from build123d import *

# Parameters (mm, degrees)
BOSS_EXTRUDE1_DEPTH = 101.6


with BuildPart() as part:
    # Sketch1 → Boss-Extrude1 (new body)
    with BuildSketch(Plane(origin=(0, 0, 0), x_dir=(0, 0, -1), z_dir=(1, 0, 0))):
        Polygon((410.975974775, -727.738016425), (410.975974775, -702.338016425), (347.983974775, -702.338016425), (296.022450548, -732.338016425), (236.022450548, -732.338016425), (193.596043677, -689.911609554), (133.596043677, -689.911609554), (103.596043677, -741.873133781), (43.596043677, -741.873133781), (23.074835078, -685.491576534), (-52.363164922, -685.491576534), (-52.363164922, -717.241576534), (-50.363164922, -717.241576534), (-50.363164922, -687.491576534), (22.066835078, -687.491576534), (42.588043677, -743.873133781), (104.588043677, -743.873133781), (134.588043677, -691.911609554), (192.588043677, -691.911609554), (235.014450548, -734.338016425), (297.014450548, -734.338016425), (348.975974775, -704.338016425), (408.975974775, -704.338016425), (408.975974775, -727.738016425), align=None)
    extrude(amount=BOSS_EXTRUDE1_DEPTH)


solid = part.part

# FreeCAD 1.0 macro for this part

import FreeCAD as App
import Part
import Sketcher
Q = App.Units.Quantity

doc = App.newDocument("Part")
body = doc.addObject("PartDesign::Body", "Body")

# Sketch on YZ plane
sketch1 = doc.addObject("Sketcher::SketchObject", "Sketch")
body.addObject(sketch1)
sketch1.AttachmentSupport = (doc.YZ_Plane, [""])
sketch1.MapMode = "FlatFace"
sketch1.addGeometry([
    Part.LineSegment(App.Vector(-727.7, -411, 0), App.Vector(-702.3, -411, 0)),  # 0
    Part.LineSegment(App.Vector(-702.3, -411, 0), App.Vector(-702.3, -348, 0)),  # 1
    Part.LineSegment(App.Vector(-702.3, -348, 0), App.Vector(-732.3, -296, 0)),  # 2
    Part.LineSegment(App.Vector(-732.3, -296, 0), App.Vector(-732.3, -236, 0)),  # 3
    Part.LineSegment(App.Vector(-732.3, -236, 0), App.Vector(-689.9, -193.6, 0)),  # 4
    Part.LineSegment(App.Vector(-689.9, -193.6, 0), App.Vector(-689.9, -133.6, 0)),  # 5
    Part.LineSegment(App.Vector(-689.9, -133.6, 0), App.Vector(-741.9, -103.6, 0)),  # 6
    Part.LineSegment(App.Vector(-741.9, -103.6, 0), App.Vector(-741.9, -43.6, 0)),  # 7
    Part.LineSegment(App.Vector(-741.9, -43.6, 0), App.Vector(-685.5, -23.1, 0)),  # 8
    Part.LineSegment(App.Vector(-685.5, -23.1, 0), App.Vector(-685.5, 52.4, 0)),  # 9
    Part.LineSegment(App.Vector(-685.5, 52.4, 0), App.Vector(-717.2, 52.4, 0)),  # 10
    Part.LineSegment(App.Vector(-717.2, 52.4, 0), App.Vector(-717.2, 50.4, 0)),  # 11
    Part.LineSegment(App.Vector(-717.2, 50.4, 0), App.Vector(-687.5, 50.4, 0)),  # 12
    Part.LineSegment(App.Vector(-687.5, 50.4, 0), App.Vector(-687.5, -22.1, 0)),  # 13
    Part.LineSegment(App.Vector(-687.5, -22.1, 0), App.Vector(-743.9, -42.6, 0)),  # 14
    Part.LineSegment(App.Vector(-743.9, -42.6, 0), App.Vector(-743.9, -104.6, 0)),  # 15
    Part.LineSegment(App.Vector(-743.9, -104.6, 0), App.Vector(-691.9, -134.6, 0)),  # 16
    Part.LineSegment(App.Vector(-691.9, -134.6, 0), App.Vector(-691.9, -192.6, 0)),  # 17
    Part.LineSegment(App.Vector(-691.9, -192.6, 0), App.Vector(-734.3, -235, 0)),  # 18
    Part.LineSegment(App.Vector(-734.3, -235, 0), App.Vector(-734.3, -297, 0)),  # 19
    Part.LineSegment(App.Vector(-734.3, -297, 0), App.Vector(-704.3, -349, 0)),  # 20
    Part.LineSegment(App.Vector(-704.3, -349, 0), App.Vector(-704.3, -409, 0)),  # 21
    Part.LineSegment(App.Vector(-704.3, -409, 0), App.Vector(-727.7, -409, 0)),  # 22
    Part.LineSegment(App.Vector(-727.7, -409, 0), App.Vector(-727.7, -411, 0)),  # 23
], False)
sketch1.addConstraint([
    Sketcher.Constraint("Coincident", 0, 2, 1, 1),
    Sketcher.Constraint("Coincident", 1, 2, 2, 1),
    Sketcher.Constraint("Coincident", 2, 2, 3, 1),
    Sketcher.Constraint("Coincident", 3, 2, 4, 1),
    Sketcher.Constraint("Coincident", 4, 2, 5, 1),
    Sketcher.Constraint("Coincident", 5, 2, 6, 1),
    Sketcher.Constraint("Coincident", 6, 2, 7, 1),
    Sketcher.Constraint("Coincident", 7, 2, 8, 1),
    Sketcher.Constraint("Coincident", 8, 2, 9, 1),
    Sketcher.Constraint("Coincident", 9, 2, 10, 1),
    Sketcher.Constraint("Coincident", 10, 2, 11, 1),
    Sketcher.Constraint("Coincident", 11, 2, 12, 1),
    Sketcher.Constraint("Coincident", 12, 2, 13, 1),
    Sketcher.Constraint("Coincident", 13, 2, 14, 1),
    Sketcher.Constraint("Coincident", 14, 2, 15, 1),
    Sketcher.Constraint("Coincident", 15, 2, 16, 1),
    Sketcher.Constraint("Coincident", 16, 2, 17, 1),
    Sketcher.Constraint("Coincident", 17, 2, 18, 1),
    Sketcher.Constraint("Coincident", 18, 2, 19, 1),
    Sketcher.Constraint("Coincident", 19, 2, 20, 1),
    Sketcher.Constraint("Coincident", 20, 2, 21, 1),
    Sketcher.Constraint("Coincident", 21, 2, 22, 1),
    Sketcher.Constraint("Coincident", 22, 2, 23, 1),
    Sketcher.Constraint("Coincident", 23, 2, 0, 1),
    Sketcher.Constraint("Horizontal", 0),
    Sketcher.Constraint("Vertical", 1),
    Sketcher.Constraint("Vertical", 3),
    Sketcher.Constraint("Vertical", 5),
    Sketcher.Constraint("Vertical", 7),
    Sketcher.Constraint("Vertical", 9),
    Sketcher.Constraint("Horizontal", 10),
    Sketcher.Constraint("Vertical", 11),
    Sketcher.Constraint("Horizontal", 12),
    Sketcher.Constraint("Vertical", 13),
    Sketcher.Constraint("Vertical", 15),
    Sketcher.Constraint("Vertical", 17),
    Sketcher.Constraint("Vertical", 19),
    Sketcher.Constraint("Vertical", 21),
    Sketcher.Constraint("Horizontal", 22),
    Sketcher.Constraint("Vertical", 23),
    Sketcher.Constraint("Parallel", 8, 14),
    Sketcher.Constraint("Parallel", 6, 16),
    Sketcher.Constraint("Parallel", 4, 18),
    Sketcher.Constraint("Parallel", 2, 20),
    Sketcher.Constraint("Equal", 3, 5),
    Sketcher.Constraint("Equal", 5, 7),
    Sketcher.Constraint("Equal", 15, 19),
    Sketcher.Constraint("Equal", 7, 21),
    Sketcher.Constraint("Equal", 11, 23),
    Sketcher.Constraint("Equal", 2, 4),
    Sketcher.Constraint("Equal", 4, 6),
    Sketcher.Constraint("Equal", 6, 8),
    Sketcher.Constraint("Equal", 8, 14),
    Sketcher.Constraint("Equal", 14, 16),
    Sketcher.Constraint("Equal", 16, 18),
    Sketcher.Constraint("Equal", 18, 20),
    Sketcher.Constraint("DistanceY", 3, 1, 3, 2, 60.0),
    Sketcher.Constraint("DistanceY", 11, 2, 11, 1, 2.0),
    Sketcher.Constraint("DistanceY", 15, 2, 15, 1, 62.0),
    Sketcher.Constraint("DistanceY", 17, 2, 17, 1, 58.0),
    Sketcher.Constraint("Angle", 2, Q("120 deg")),
    Sketcher.Constraint("Angle", 4, Q("45 deg")),
    Sketcher.Constraint("Angle", 6, Q("150 deg")),
    Sketcher.Constraint("Angle", 8, Q("20 deg")),
    Sketcher.Constraint("Distance", 2, 60.0),
    Sketcher.Constraint("DistanceX", 0, 1, 0, 2, 25.4),
    Sketcher.Constraint("DistanceX", 22, 2, 22, 1, 23.4),
    Sketcher.Constraint("DistanceX", 10, 2, 10, 1, 31.75),
    Sketcher.Constraint("DistanceY", 13, 2, 13, 1, 72.43),
    Sketcher.Constraint("DistanceY", 1, 1, 1, 2, 62.992),
    Sketcher.Constraint("DistanceY", 2, 2, -1, 1, 296.022451),
    Sketcher.Constraint("DistanceX", 4, 2, -1, 1, 689.91161),
])
pad1 = doc.addObject("PartDesign::Pad", "Pad")
body.addObject(pad1)
pad1.Profile = sketch1
pad1.Length = 101.6

doc.recompute()
